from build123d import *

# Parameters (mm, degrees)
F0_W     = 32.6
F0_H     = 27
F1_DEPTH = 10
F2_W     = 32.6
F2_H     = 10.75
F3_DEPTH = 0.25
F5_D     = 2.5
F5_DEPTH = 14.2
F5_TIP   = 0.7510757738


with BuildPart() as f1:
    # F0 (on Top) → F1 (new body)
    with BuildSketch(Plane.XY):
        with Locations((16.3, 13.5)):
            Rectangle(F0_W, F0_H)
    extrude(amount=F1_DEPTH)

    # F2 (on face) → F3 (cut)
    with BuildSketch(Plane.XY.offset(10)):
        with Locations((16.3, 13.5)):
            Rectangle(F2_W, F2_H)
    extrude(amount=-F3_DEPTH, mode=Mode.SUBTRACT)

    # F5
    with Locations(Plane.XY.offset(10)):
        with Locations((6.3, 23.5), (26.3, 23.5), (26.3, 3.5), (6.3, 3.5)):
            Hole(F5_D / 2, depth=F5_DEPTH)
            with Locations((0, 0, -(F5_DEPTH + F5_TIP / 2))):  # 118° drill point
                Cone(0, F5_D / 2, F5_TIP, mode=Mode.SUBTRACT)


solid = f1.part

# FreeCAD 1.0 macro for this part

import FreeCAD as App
import Part
import Sketcher


def add_polygon(sketch, points):
    """Adds a closed chain of lines whose ends are joined by coincident constraints."""
    first, n = sketch.GeometryCount, len(points)
    for a, b in zip(points, points[1:] + points[:1]):
        sketch.addGeometry(Part.LineSegment(App.Vector(*a, 0), App.Vector(*b, 0)), False)
    for i in range(n):
        sketch.addConstraint(Sketcher.Constraint("Coincident", first + i, 2, first + (i + 1) % n, 1))

doc = App.newDocument("Part")
body = doc.addObject("PartDesign::Body", "Body")

# Sketch on XY plane
sketch1 = body.newObject("Sketcher::SketchObject", "Sketch")
sketch1.AttachmentSupport = (doc.getObject("XY_Plane"), [""])
sketch1.MapMode = "FlatFace"
add_polygon(sketch1, [(0, 27), (0, 0), (33, 0), (33, 27)])  # lines 0-3
sketch1.addConstraint(Sketcher.Constraint("Vertical", 0))
sketch1.addConstraint(Sketcher.Constraint("Horizontal", 1))
sketch1.addConstraint(Sketcher.Constraint("Vertical", 2))
sketch1.addConstraint(Sketcher.Constraint("Horizontal", 3))
sketch1.addConstraint(Sketcher.Constraint("Coincident", 0, 2, -1, 1))
sketch1.addConstraint(Sketcher.Constraint("DistanceY", 0, 2, 0, 1, 27.0))
sketch1.addConstraint(Sketcher.Constraint("DistanceX", 1, 1, 1, 2, 32.6))
pad1 = body.newObject("PartDesign::Pad", "Pad")
pad1.Profile = sketch1
pad1.Length = 10

# Sketch on XY plane
sketch2 = body.newObject("Sketcher::SketchObject", "Sketch001")
sketch2.AttachmentSupport = (doc.getObject("XY_Plane"), [""])
sketch2.MapMode = "FlatFace"
sketch2.AttachmentOffset = App.Placement(App.Vector(0, 0, 10), App.Rotation())
add_polygon(sketch2, [(0, 19), (0, 8), (33, 8), (33, 19)])  # lines 0-3
sketch2.addConstraint(Sketcher.Constraint("Vertical", 0))
sketch2.addConstraint(Sketcher.Constraint("Horizontal", 1))
sketch2.addConstraint(Sketcher.Constraint("Vertical", 2))
sketch2.addConstraint(Sketcher.Constraint("Horizontal", 3))
sketch2.addConstraint(Sketcher.Constraint("PointOnObject", 0, 2, -2))
sketch2.addConstraint(Sketcher.Constraint("DistanceX", 1, 1, 1, 2, 32.6))
sketch2.addConstraint(Sketcher.Constraint("DistanceY", 0, 2, 0, 1, 10.75))
sketch2.addConstraint(Sketcher.Constraint("DistanceY", -1, 1, 0, 2, 8.125))
pocket1 = body.newObject("PartDesign::Pocket", "Pocket")
pocket1.Profile = sketch2
pocket1.Length = 0.25

# Sketch on XY plane
sketch3 = body.newObject("Sketcher::SketchObject", "Sketch002")
sketch3.AttachmentSupport = (doc.getObject("XY_Plane"), [""])
sketch3.MapMode = "FlatFace"
sketch3.AttachmentOffset = App.Placement(App.Vector(0, 0, 10), App.Rotation())
sketch3.addGeometry(Part.Circle(App.Vector(6.3, 23.5, 0), App.Vector(0, 0, 1), 1.2), False)
sketch3.addGeometry(Part.Circle(App.Vector(26.3, 23.5, 0), App.Vector(0, 0, 1), 1.2), False)
sketch3.addGeometry(Part.Circle(App.Vector(26.3, 3.5, 0), App.Vector(0, 0, 1), 1.2), False)
sketch3.addGeometry(Part.Circle(App.Vector(6.3, 3.5, 0), App.Vector(0, 0, 1), 1.2), False)
sketch3.addConstraint(Sketcher.Constraint("Equal", 0, 1))
sketch3.addConstraint(Sketcher.Constraint("Equal", 1, 2))
sketch3.addConstraint(Sketcher.Constraint("Equal", 2, 3))
sketch3.addConstraint(Sketcher.Constraint("Horizontal", 0, 3, 1, 3))
sketch3.addConstraint(Sketcher.Constraint("Horizontal", 2, 3, 3, 3))
sketch3.addConstraint(Sketcher.Constraint("Vertical", 1, 3, 2, 3))
sketch3.addConstraint(Sketcher.Constraint("Vertical", 0, 3, 3, 3))
sketch3.addConstraint(Sketcher.Constraint("Diameter", 0, 2.5))
sketch3.addConstraint(Sketcher.Constraint("DistanceX", 0, 3, 1, 3, 20.0))
sketch3.addConstraint(Sketcher.Constraint("DistanceY", 2, 3, 1, 3, 20.0))
sketch3.addConstraint(Sketcher.Constraint("DistanceX", -1, 1, 0, 3, 6.3))
sketch3.addConstraint(Sketcher.Constraint("DistanceY", -1, 1, 0, 3, 23.5))
doc.recompute()
hole = body.newObject("PartDesign::Hole", "Hole")
hole.Profile = sketch3
hole.ThreadType = "None"
hole.Diameter = 2.5
hole.DepthType = "Dimension"
hole.Depth = 14.2
hole.DrillPoint = "Angled"
hole.DrillPointAngle = 118

doc.recompute()
